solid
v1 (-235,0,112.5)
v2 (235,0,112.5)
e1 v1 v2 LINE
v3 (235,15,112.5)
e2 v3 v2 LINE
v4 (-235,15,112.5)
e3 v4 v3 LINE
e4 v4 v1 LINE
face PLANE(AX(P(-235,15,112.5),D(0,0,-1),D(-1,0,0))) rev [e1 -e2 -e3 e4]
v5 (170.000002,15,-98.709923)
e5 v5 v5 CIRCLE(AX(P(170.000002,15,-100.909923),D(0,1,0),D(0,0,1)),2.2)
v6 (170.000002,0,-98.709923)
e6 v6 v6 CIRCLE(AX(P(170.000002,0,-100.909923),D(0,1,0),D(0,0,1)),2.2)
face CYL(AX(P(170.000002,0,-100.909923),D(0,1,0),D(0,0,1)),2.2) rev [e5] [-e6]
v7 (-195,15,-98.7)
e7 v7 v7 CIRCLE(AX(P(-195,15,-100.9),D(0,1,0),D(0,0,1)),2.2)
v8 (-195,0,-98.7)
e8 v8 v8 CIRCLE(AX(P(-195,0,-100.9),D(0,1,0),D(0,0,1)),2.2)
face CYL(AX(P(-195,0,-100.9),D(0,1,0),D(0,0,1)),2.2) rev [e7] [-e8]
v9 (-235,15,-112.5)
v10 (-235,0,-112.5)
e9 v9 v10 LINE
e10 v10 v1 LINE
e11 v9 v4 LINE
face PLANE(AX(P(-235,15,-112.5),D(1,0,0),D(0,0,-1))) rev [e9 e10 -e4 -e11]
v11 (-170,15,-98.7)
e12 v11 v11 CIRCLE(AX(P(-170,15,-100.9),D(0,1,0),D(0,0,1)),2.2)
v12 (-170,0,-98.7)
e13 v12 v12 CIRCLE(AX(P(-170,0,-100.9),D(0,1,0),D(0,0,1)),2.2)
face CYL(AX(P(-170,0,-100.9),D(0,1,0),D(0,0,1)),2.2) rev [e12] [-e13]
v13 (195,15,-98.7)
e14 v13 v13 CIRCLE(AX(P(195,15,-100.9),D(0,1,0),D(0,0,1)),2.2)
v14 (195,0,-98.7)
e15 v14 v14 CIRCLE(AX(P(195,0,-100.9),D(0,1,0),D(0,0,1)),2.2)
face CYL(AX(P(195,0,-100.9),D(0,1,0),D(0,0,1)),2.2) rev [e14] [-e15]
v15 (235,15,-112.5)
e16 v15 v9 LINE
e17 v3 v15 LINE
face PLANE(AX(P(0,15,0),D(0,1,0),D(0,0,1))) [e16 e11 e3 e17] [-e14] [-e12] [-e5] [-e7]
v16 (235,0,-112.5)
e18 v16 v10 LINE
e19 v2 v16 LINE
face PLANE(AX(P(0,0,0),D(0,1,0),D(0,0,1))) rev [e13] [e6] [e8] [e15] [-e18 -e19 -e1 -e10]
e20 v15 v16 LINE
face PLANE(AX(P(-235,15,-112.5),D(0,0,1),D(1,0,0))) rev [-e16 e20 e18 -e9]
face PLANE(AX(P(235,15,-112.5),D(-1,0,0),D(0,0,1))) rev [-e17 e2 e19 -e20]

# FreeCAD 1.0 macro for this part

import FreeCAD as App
import Part
import Sketcher


def add_polygon(sketch, points):
    """Adds a closed chain of lines whose ends are joined by coincident constraints."""
    first, n = sketch.GeometryCount, len(points)
    for a, b in zip(points, points[1:] + points[:1]):
        sketch.addGeometry(Part.LineSegment(App.Vector(*a, 0), App.Vector(*b, 0)), False)
    for i in range(n):
        sketch.addConstraint(Sketcher.Constraint("Coincident", first + i, 2, first + (i + 1) % n, 1))

doc = App.newDocument("Part")
body = doc.addObject("PartDesign::Body", "Body")

sketch1 = doc.addObject("Sketcher::SketchObject", "Sketch")
body.addObject(sketch1)
sketch1.AttachmentSupport = (doc.XZ_Plane, [""])
sketch1.MapMode = "FlatFace"
add_polygon(sketch1, [(-235, -112.5), (-235, 112.5), (235, 112.5), (235, -112.5)])
sketch1.addConstraint([
    Sketcher.Constraint("Vertical", 0),
    Sketcher.Constraint("Horizontal", 1),
    Sketcher.Constraint("Vertical", 2),
    Sketcher.Constraint("Horizontal", 3),
    Sketcher.Constraint("Symmetric", 0, 2, 2, 2, -1, 1),
    Sketcher.Constraint("DistanceX", 1, 1, 1, 2, 470.0),
    Sketcher.Constraint("DistanceY", 0, 1, 0, 2, 225.0),
])
pad1 = doc.addObject("PartDesign::Pad", "Pad")
body.addObject(pad1)
pad1.Profile = sketch1
pad1.Length = 15
pad1.Reversed = True

sketch2 = doc.addObject("Sketcher::SketchObject", "Sketch001")
body.addObject(sketch2)
sketch2.AttachmentSupport = (doc.XZ_Plane, [""])
sketch2.MapMode = "FlatFace"
sketch2.AttachmentOffset = App.Placement(App.Vector(0, 0, -15), App.Rotation())
sketch2.addGeometry([
    Part.Circle(App.Vector(-195, -100.9, 0), App.Vector(0, 0, 1), 2.2),
    Part.Circle(App.Vector(-170, -100.9, 0), App.Vector(0, 0, 1), 2.2),
    Part.Circle(App.Vector(195, -100.9, 0), App.Vector(0, 0, 1), 2.2),
    Part.Circle(App.Vector(170.000002, -100.909923, 0), App.Vector(0, 0, 1), 2.2),
], False)
sketch2.addConstraint([
    Sketcher.Constraint("Equal", 0, 1),
    Sketcher.Constraint("Equal", 1, 2),
    Sketcher.Constraint("Equal", 2, 3),
    Sketcher.Constraint("Symmetric", 0, 3, 2, 3, -2),
    Sketcher.Constraint("Horizontal", 0, 3, 1, 3),
    Sketcher.Constraint("Diameter", 0, 4.4),
    Sketcher.Constraint("DistanceX", 0, 3, -1, 1, 195.0),
    Sketcher.Constraint("DistanceX", 1, 3, -1, 1, 170.0),
    Sketcher.Constraint("DistanceX", -1, 1, 3, 3, 170.000002),
    Sketcher.Constraint("DistanceY", 0, 3, -1, 1, 100.9),
    Sketcher.Constraint("DistanceY", 3, 3, -1, 1, 100.909923),
])
pocket1 = doc.addObject("PartDesign::Pocket", "Pocket")
body.addObject(pocket1)
pocket1.Profile = sketch2
pocket1.Type = "ThroughAll"
pocket1.Reversed = True

doc.recompute()
